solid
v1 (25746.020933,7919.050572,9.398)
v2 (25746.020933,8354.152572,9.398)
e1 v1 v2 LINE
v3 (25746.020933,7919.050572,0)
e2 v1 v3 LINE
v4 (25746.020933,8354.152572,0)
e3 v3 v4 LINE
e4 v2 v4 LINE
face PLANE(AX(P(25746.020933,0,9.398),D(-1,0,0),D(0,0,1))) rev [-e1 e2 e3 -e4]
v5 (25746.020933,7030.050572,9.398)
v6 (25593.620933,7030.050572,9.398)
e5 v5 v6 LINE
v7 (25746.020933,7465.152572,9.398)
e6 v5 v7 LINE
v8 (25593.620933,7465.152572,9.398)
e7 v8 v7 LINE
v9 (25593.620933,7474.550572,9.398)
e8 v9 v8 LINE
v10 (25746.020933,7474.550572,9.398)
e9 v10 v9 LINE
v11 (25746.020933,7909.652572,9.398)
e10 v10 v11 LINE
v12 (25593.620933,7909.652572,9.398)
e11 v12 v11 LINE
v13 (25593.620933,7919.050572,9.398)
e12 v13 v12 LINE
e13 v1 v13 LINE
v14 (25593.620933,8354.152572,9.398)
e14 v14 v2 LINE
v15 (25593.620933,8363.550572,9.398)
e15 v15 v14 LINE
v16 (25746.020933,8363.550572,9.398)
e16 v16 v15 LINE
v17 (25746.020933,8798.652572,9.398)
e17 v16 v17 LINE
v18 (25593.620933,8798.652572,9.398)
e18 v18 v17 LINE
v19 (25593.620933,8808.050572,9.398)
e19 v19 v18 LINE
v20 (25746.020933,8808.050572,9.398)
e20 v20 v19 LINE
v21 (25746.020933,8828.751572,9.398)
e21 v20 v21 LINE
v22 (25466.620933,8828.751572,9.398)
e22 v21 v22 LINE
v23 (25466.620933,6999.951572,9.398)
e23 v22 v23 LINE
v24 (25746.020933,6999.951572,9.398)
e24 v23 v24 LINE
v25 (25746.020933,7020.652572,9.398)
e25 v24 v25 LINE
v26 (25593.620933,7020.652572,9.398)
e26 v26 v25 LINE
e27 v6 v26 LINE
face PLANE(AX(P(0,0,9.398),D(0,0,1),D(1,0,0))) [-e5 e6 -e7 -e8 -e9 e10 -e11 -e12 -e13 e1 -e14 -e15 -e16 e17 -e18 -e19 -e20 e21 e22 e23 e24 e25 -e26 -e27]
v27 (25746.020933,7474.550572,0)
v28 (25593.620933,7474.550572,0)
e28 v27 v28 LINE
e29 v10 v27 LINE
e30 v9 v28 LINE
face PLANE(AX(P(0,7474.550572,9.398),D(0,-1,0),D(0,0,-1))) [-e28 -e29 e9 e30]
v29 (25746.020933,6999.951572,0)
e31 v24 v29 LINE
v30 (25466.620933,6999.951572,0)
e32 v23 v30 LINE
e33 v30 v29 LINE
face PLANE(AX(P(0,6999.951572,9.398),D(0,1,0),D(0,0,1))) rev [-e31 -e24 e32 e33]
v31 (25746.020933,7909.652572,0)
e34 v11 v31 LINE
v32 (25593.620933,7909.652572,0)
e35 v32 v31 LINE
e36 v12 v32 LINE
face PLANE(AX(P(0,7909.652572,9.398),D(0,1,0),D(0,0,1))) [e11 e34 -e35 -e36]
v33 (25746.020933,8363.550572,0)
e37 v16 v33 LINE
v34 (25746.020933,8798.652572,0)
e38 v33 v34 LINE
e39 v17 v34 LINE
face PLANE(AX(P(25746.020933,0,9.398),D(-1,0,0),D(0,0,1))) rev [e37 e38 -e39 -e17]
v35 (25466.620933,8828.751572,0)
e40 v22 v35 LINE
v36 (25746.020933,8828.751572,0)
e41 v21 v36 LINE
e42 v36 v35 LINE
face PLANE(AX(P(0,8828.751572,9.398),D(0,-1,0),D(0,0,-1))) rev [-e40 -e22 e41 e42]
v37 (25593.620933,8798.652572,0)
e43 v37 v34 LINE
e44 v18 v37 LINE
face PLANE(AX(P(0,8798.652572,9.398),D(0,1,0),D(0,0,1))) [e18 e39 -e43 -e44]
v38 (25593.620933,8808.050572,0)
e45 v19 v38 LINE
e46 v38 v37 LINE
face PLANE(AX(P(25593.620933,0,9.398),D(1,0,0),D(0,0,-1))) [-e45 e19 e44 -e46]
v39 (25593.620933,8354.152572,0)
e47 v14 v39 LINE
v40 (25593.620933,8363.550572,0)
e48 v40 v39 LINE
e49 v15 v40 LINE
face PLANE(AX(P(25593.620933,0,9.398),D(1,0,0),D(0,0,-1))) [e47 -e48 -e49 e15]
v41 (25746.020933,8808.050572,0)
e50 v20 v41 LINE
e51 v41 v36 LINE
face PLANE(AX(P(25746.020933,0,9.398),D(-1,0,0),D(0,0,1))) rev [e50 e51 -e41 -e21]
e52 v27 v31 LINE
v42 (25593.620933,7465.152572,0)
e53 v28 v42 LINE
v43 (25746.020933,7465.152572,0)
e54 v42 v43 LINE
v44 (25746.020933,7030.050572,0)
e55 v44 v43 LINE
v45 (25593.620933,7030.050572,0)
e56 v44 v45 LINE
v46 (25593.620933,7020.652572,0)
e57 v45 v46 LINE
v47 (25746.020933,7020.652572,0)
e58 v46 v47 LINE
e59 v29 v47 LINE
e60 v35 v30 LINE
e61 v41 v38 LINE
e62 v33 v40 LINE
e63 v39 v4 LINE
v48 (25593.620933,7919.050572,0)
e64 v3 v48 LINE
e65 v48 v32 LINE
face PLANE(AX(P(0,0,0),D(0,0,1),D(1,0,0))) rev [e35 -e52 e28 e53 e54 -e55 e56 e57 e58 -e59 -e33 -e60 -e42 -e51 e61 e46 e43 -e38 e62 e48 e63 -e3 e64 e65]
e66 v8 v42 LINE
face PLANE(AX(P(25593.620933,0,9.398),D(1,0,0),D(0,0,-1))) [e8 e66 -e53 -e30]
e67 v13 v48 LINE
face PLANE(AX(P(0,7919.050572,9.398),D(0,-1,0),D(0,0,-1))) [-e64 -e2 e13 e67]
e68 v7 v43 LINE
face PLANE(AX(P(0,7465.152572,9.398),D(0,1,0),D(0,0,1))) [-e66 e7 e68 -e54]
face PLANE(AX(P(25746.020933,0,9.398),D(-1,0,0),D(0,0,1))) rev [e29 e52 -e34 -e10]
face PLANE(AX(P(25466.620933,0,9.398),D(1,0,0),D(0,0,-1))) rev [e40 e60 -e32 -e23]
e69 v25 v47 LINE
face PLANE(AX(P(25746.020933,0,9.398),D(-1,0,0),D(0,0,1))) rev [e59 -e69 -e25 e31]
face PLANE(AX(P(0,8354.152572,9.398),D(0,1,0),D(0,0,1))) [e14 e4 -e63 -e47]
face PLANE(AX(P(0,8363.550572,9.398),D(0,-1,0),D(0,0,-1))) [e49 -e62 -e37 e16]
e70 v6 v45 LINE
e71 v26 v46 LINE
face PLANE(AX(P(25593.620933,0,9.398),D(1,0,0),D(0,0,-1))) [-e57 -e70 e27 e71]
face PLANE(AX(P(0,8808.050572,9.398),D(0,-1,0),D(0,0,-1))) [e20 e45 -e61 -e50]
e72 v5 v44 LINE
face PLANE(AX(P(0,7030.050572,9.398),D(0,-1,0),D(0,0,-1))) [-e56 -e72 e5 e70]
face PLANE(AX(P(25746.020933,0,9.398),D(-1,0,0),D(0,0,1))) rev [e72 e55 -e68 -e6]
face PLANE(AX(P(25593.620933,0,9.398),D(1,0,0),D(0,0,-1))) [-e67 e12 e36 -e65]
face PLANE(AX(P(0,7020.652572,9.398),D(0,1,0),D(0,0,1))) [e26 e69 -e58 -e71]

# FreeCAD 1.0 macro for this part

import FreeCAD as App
import Part
import Sketcher

V = App.Vector
Q = App.Units.Quantity

doc = App.newDocument("Part")
body = doc.addObject("PartDesign::Body", "Body")

# Sketch on XY plane
sketch1 = body.newObject("Sketcher::SketchObject", "Sketch")
sketch1.AttachmentSupport = (doc.getObject("XY_Plane"), [""])
sketch1.MapMode = "FlatFace"
sketch1.addGeometry(Part.LineSegment(V(25467, 8829, 0), V(25467, 7000, 0)), False)
sketch1.addGeometry(Part.LineSegment(V(25467, 7000, 0), V(25746, 7000, 0)), False)
sketch1.addGeometry(Part.LineSegment(V(25746, 7000, 0), V(25746, 7021, 0)), False)
sketch1.addGeometry(Part.LineSegment(V(25746, 7021, 0), V(25594, 7021, 0)), False)
sketch1.addGeometry(Part.LineSegment(V(25594, 7021, 0), V(25594, 7030, 0)), False)
sketch1.addGeometry(Part.LineSegment(V(25594, 7030, 0), V(25746, 7030, 0)), False)
sketch1.addGeometry(Part.LineSegment(V(25746, 7030, 0), V(25746, 7465, 0)), False)
sketch1.addGeometry(Part.LineSegment(V(25746, 7465, 0), V(25594, 7465, 0)), False)
sketch1.addGeometry(Part.LineSegment(V(25594, 7465, 0), V(25594, 7475, 0)), False)
sketch1.addGeometry(Part.LineSegment(V(25594, 7475, 0), V(25746, 7475, 0)), False)
sketch1.addGeometry(Part.LineSegment(V(25746, 7475, 0), V(25746, 7910, 0)), False)
sketch1.addGeometry(Part.LineSegment(V(25746, 7910, 0), V(25594, 7910, 0)), False)
sketch1.addGeometry(Part.LineSegment(V(25594, 7910, 0), V(25594, 7919, 0)), False)
sketch1.addGeometry(Part.LineSegment(V(25594, 7919, 0), V(25746, 7919, 0)), False)
sketch1.addGeometry(Part.LineSegment(V(25746, 7919, 0), V(25746, 8354, 0)), False)
sketch1.addGeometry(Part.LineSegment(V(25746, 8354, 0), V(25594, 8354, 0)), False)
sketch1.addGeometry(Part.LineSegment(V(25594, 8354, 0), V(25594, 8364, 0)), False)
sketch1.addGeometry(Part.LineSegment(V(25594, 8364, 0), V(25746, 8364, 0)), False)
sketch1.addGeometry(Part.LineSegment(V(25746, 8364, 0), V(25746, 8799, 0)), False)
sketch1.addGeometry(Part.LineSegment(V(25746, 8799, 0), V(25594, 8799, 0)), False)
sketch1.addGeometry(Part.LineSegment(V(25594, 8799, 0), V(25594, 8808, 0)), False)
sketch1.addGeometry(Part.LineSegment(V(25594, 8808, 0), V(25746, 8808, 0)), False)
sketch1.addGeometry(Part.LineSegment(V(25746, 8808, 0), V(25746, 8829, 0)), False)
sketch1.addGeometry(Part.LineSegment(V(25746, 8829, 0), V(25467, 8829, 0)), False)
sketch1.addConstraint(Sketcher.Constraint("Coincident", 0, 2, 1, 1))
sketch1.addConstraint(Sketcher.Constraint("Coincident", 1, 2, 2, 1))
sketch1.addConstraint(Sketcher.Constraint("Coincident", 2, 2, 3, 1))
sketch1.addConstraint(Sketcher.Constraint("Coincident", 3, 2, 4, 1))
sketch1.addConstraint(Sketcher.Constraint("Coincident", 4, 2, 5, 1))
sketch1.addConstraint(Sketcher.Constraint("Coincident", 5, 2, 6, 1))
sketch1.addConstraint(Sketcher.Constraint("Coincident", 6, 2, 7, 1))
sketch1.addConstraint(Sketcher.Constraint("Coincident", 7, 2, 8, 1))
sketch1.addConstraint(Sketcher.Constraint("Coincident", 8, 2, 9, 1))
sketch1.addConstraint(Sketcher.Constraint("Coincident", 9, 2, 10, 1))
sketch1.addConstraint(Sketcher.Constraint("Coincident", 10, 2, 11, 1))
sketch1.addConstraint(Sketcher.Constraint("Coincident", 11, 2, 12, 1))
sketch1.addConstraint(Sketcher.Constraint("Coincident", 12, 2, 13, 1))
sketch1.addConstraint(Sketcher.Constraint("Coincident", 13, 2, 14, 1))
sketch1.addConstraint(Sketcher.Constraint("Coincident", 14, 2, 15, 1))
sketch1.addConstraint(Sketcher.Constraint("Coincident", 15, 2, 16, 1))
sketch1.addConstraint(Sketcher.Constraint("Coincident", 16, 2, 17, 1))
sketch1.addConstraint(Sketcher.Constraint("Coincident", 17, 2, 18, 1))
sketch1.addConstraint(Sketcher.Constraint("Coincident", 18, 2, 19, 1))
sketch1.addConstraint(Sketcher.Constraint("Coincident", 19, 2, 20, 1))
sketch1.addConstraint(Sketcher.Constraint("Coincident", 20, 2, 21, 1))
sketch1.addConstraint(Sketcher.Constraint("Coincident", 21, 2, 22, 1))
sketch1.addConstraint(Sketcher.Constraint("Coincident", 22, 2, 23, 1))
sketch1.addConstraint(Sketcher.Constraint("Coincident", 23, 2, 0, 1))
sketch1.addConstraint(Sketcher.Constraint("Vertical", 0))
sketch1.addConstraint(Sketcher.Constraint("Horizontal", 1))
sketch1.addConstraint(Sketcher.Constraint("Vertical", 2))
sketch1.addConstraint(Sketcher.Constraint("Horizontal", 3))
sketch1.addConstraint(Sketcher.Constraint("Vertical", 4))
sketch1.addConstraint(Sketcher.Constraint("Horizontal", 5))
sketch1.addConstraint(Sketcher.Constraint("Vertical", 6))
sketch1.addConstraint(Sketcher.Constraint("Horizontal", 7))
sketch1.addConstraint(Sketcher.Constraint("Vertical", 8))
sketch1.addConstraint(Sketcher.Constraint("Horizontal", 9))
sketch1.addConstraint(Sketcher.Constraint("Vertical", 10))
sketch1.addConstraint(Sketcher.Constraint("Horizontal", 11))
sketch1.addConstraint(Sketcher.Constraint("Vertical", 12))
sketch1.addConstraint(Sketcher.Constraint("Horizontal", 13))
sketch1.addConstraint(Sketcher.Constraint("Vertical", 14))
sketch1.addConstraint(Sketcher.Constraint("Horizontal", 15))
sketch1.addConstraint(Sketcher.Constraint("Vertical", 16))
sketch1.addConstraint(Sketcher.Constraint("Horizontal", 17))
sketch1.addConstraint(Sketcher.Constraint("Vertical", 18))
sketch1.addConstraint(Sketcher.Constraint("Horizontal", 19))
sketch1.addConstraint(Sketcher.Constraint("Vertical", 20))
sketch1.addConstraint(Sketcher.Constraint("Horizontal", 21))
sketch1.addConstraint(Sketcher.Constraint("Vertical", 22))
sketch1.addConstraint(Sketcher.Constraint("Horizontal", 23))
sketch1.addConstraint(Sketcher.Constraint("Vertical", 2, 2, 5, 2))
sketch1.addConstraint(Sketcher.Constraint("Vertical", 4, 2, 7, 2))
sketch1.addConstraint(Sketcher.Constraint("Vertical", 6, 2, 9, 2))
sketch1.addConstraint(Sketcher.Constraint("Vertical", 8, 2, 11, 2))
sketch1.addConstraint(Sketcher.Constraint("Vertical", 10, 2, 13, 2))
sketch1.addConstraint(Sketcher.Constraint("Vertical", 12, 2, 15, 2))
sketch1.addConstraint(Sketcher.Constraint("Vertical", 14, 2, 17, 2))
sketch1.addConstraint(Sketcher.Constraint("Vertical", 16, 2, 19, 2))
sketch1.addConstraint(Sketcher.Constraint("Vertical", 18, 2, 21, 2))
sketch1.addConstraint(Sketcher.Constraint("Equal", 4, 8))
sketch1.addConstraint(Sketcher.Constraint("Equal", 6, 10))
sketch1.addConstraint(Sketcher.Constraint("Equal", 8, 12))
sketch1.addConstraint(Sketcher.Constraint("Equal", 10, 14))
sketch1.addConstraint(Sketcher.Constraint("Equal", 12, 16))
sketch1.addConstraint(Sketcher.Constraint("Equal", 14, 18))
sketch1.addConstraint(Sketcher.Constraint("Equal", 16, 20))
sketch1.addConstraint(Sketcher.Constraint("Equal", 2, 22))
sketch1.addConstraint(Sketcher.Constraint("DistanceX", 1, 1, 1, 2, Q("11 in")))
sketch1.addConstraint(Sketcher.Constraint("DistanceX", 3, 2, 3, 1, Q("6 in")))
sketch1.addConstraint(Sketcher.Constraint("DistanceY", 0, 2, 0, 1, Q("72 in")))
sketch1.addConstraint(Sketcher.Constraint("DistanceY", 4, 1, 4, 2, Q("0.37 in")))
sketch1.addConstraint(Sketcher.Constraint("DistanceY", 6, 1, 6, 2, Q("17.13 in")))
sketch1.addConstraint(Sketcher.Constraint("DistanceY", -1, 1, 0, 2, 6999.951572))
sketch1.addConstraint(Sketcher.Constraint("DistanceX", -1, 1, 0, 2, 25466.620933))
pad1 = body.newObject("PartDesign::Pad", "Pad")
pad1.Profile = sketch1
pad1.Length = Q("0.37 in")

doc.recompute()
